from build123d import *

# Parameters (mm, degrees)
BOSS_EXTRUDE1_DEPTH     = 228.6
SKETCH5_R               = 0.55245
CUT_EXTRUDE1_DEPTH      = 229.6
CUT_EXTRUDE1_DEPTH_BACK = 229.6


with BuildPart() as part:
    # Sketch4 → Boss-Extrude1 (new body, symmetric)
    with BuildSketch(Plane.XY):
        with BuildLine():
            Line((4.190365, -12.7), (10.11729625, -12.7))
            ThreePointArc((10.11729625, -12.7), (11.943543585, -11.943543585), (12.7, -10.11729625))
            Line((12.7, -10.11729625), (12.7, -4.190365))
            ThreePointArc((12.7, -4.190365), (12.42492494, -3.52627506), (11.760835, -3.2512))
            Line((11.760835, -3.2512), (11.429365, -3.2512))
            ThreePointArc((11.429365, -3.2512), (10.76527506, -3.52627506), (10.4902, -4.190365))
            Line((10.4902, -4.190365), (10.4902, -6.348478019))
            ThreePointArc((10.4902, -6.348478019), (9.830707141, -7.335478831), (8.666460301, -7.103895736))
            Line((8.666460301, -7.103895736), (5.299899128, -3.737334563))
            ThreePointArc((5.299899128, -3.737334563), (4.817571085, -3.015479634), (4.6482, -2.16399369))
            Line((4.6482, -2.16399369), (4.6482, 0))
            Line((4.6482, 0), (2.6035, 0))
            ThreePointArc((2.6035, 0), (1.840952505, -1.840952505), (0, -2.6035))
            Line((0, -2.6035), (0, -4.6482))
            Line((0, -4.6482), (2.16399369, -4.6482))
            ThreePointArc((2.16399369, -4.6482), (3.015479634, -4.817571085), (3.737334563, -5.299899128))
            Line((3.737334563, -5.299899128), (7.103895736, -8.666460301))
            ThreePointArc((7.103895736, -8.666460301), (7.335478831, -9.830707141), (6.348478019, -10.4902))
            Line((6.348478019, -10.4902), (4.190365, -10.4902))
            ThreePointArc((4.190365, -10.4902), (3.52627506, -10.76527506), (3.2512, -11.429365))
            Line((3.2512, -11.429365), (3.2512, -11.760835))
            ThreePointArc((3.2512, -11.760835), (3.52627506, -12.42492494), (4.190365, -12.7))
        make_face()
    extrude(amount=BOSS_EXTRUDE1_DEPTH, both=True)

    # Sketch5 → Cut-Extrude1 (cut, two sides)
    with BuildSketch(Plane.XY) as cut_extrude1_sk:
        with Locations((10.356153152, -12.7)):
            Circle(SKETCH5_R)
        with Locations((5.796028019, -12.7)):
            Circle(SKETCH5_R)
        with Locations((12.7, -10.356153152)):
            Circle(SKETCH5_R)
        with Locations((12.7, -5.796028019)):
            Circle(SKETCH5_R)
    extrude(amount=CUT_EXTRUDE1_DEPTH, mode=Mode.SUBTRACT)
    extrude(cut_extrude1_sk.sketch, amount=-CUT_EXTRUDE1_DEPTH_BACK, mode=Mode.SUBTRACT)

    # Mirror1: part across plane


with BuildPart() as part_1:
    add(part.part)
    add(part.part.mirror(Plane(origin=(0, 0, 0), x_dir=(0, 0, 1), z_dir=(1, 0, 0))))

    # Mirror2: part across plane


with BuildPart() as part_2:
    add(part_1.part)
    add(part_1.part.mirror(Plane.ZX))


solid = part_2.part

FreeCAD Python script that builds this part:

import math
import FreeCAD as App
import Part
import Sketcher
from FreeCAD import Vector
Q = App.Units.Quantity

doc = App.newDocument("Part")
body = doc.addObject("PartDesign::Body", "Body")

# Sketch on XY plane
sketch1 = body.newObject("Sketcher::SketchObject", "Sketch")
sketch1.AttachmentSupport = (doc.getObject("XY_Plane"), [""])
sketch1.MapMode = "FlatFace"
sketch1.addGeometry([
    Part.LineSegment(Vector(4.19, -12.7, 0), Vector(10.12, -12.7, 0)),  # 0
    Part.ArcOfCircle(Part.Circle(Vector(10.12, -10.12, 0), Vector(0, 0, 1), 2.58), math.radians(-90), math.radians(0)),  # 1
    Part.LineSegment(Vector(12.7, -10.12, 0), Vector(12.7, -4.19, 0)),  # 2
    Part.ArcOfCircle(Part.Circle(Vector(11.76, -4.19, 0), Vector(0, 0, 1), 0.94), math.radians(0), math.radians(90)),  # 3
    Part.LineSegment(Vector(11.76, -3.25, 0), Vector(11.43, -3.25, 0)),  # 4
    Part.ArcOfCircle(Part.Circle(Vector(11.43, -4.19, 0), Vector(0, 0, 1), 0.94), math.radians(90), math.radians(180)),  # 5
    Part.LineSegment(Vector(10.49, -4.19, 0), Vector(10.49, -6.35, 0)),  # 6
    Part.ArcOfCircle(Part.Circle(Vector(9.42, -6.35, 0), Vector(0, 0, 1), 1.07), math.radians(-135), math.radians(0)),  # 7
    Part.LineSegment(Vector(8.67, -7.1, 0), Vector(5.3, -3.74, 0)),  # 8
    Part.ArcOfCircle(Part.Circle(Vector(6.87, -2.16, 0), Vector(0, 0, 1), 2.23), math.radians(-180), math.radians(-135)),  # 9
    Part.LineSegment(Vector(4.65, -2.16, 0), Vector(4.65, 0, 0)),  # 10
    Part.LineSegment(Vector(4.65, 0, 0), Vector(2.6, 0, 0)),  # 11
    Part.ArcOfCircle(Part.Circle(Vector(0, 0, 0), Vector(0, 0, 1), 2.6), math.radians(-90), math.radians(0)),  # 12
    Part.LineSegment(Vector(0, -2.6, 0), Vector(0, -4.65, 0)),  # 13
    Part.LineSegment(Vector(0, -4.65, 0), Vector(2.16, -4.65, 0)),  # 14
    Part.ArcOfCircle(Part.Circle(Vector(2.16, -6.87, 0), Vector(0, 0, 1), 2.23), math.radians(45), math.radians(90)),  # 15
    Part.LineSegment(Vector(3.74, -5.3, 0), Vector(7.1, -8.67, 0)),  # 16
    Part.ArcOfCircle(Part.Circle(Vector(6.35, -9.42, 0), Vector(0, 0, 1), 1.07), math.radians(-90), math.radians(45)),  # 17
    Part.LineSegment(Vector(6.35, -10.49, 0), Vector(4.19, -10.49, 0)),  # 18
    Part.ArcOfCircle(Part.Circle(Vector(4.19, -11.43, 0), Vector(0, 0, 1), 0.94), math.radians(90), math.radians(180)),  # 19
    Part.LineSegment(Vector(3.25, -11.43, 0), Vector(3.25, -11.76, 0)),  # 20
    Part.ArcOfCircle(Part.Circle(Vector(4.19, -11.76, 0), Vector(0, 0, 1), 0.94), math.radians(-180), math.radians(-90)),  # 21
], False)
sketch1.addConstraint([
    Sketcher.Constraint("Tangent", 0, 2, 1, 1),
    Sketcher.Constraint("Tangent", 1, 2, 2, 1),
    Sketcher.Constraint("Tangent", 2, 2, 3, 1),
    Sketcher.Constraint("Tangent", 3, 2, 4, 1),
    Sketcher.Constraint("Tangent", 4, 2, 5, 1),
    Sketcher.Constraint("Tangent", 5, 2, 6, 1),
    Sketcher.Constraint("Tangent", 6, 2, 7, 2),
    Sketcher.Constraint("Tangent", 7, 1, 8, 1),
    Sketcher.Constraint("Tangent", 8, 2, 9, 2),
    Sketcher.Constraint("Tangent", 9, 1, 10, 1),
    Sketcher.Constraint("Coincident", 10, 2, 11, 1),
    Sketcher.Constraint("Coincident", 11, 2, 12, 2),
    Sketcher.Constraint("Coincident", 12, 1, 13, 1),
    Sketcher.Constraint("Coincident", 13, 2, 14, 1),
    Sketcher.Constraint("Tangent", 14, 2, 15, 2),
    Sketcher.Constraint("Tangent", 15, 1, 16, 1),
    Sketcher.Constraint("Tangent", 16, 2, 17, 2),
    Sketcher.Constraint("Tangent", 17, 1, 18, 1),
    Sketcher.Constraint("Tangent", 18, 2, 19, 1),
    Sketcher.Constraint("Tangent", 19, 2, 20, 1),
    Sketcher.Constraint("Tangent", 20, 2, 21, 1),
    Sketcher.Constraint("Tangent", 21, 2, 0, 1),
    Sketcher.Constraint("Horizontal", 0),
    Sketcher.Constraint("Vertical", 2),
    Sketcher.Constraint("Horizontal", 4),
    Sketcher.Constraint("Vertical", 6),
    Sketcher.Constraint("Vertical", 10),
    Sketcher.Constraint("Horizontal", 11),
    Sketcher.Constraint("Vertical", 13),
    Sketcher.Constraint("Horizontal", 14),
    Sketcher.Constraint("Horizontal", 18),
    Sketcher.Constraint("Vertical", 20),
    Sketcher.Constraint("Coincident", 12, 3, -1, 1),
    Sketcher.Constraint("Equal", 3, 5),
    Sketcher.Constraint("Equal", 9, 15),
    Sketcher.Constraint("Equal", 7, 17),
    Sketcher.Constraint("Equal", 5, 19),
    Sketcher.Constraint("Equal", 19, 21),
    Sketcher.Constraint("PointOnObject", 10, 2, -1),
    Sketcher.Constraint("PointOnObject", 12, 1, -2),
    Sketcher.Constraint("Parallel", 8, 16),
    Sketcher.Constraint("Equal", 0, 2),
    Sketcher.Constraint("Equal", 18, 6),
    Sketcher.Constraint("Equal", 14, 10),
    Sketcher.Constraint("Equal", 11, 13),
    Sketcher.Constraint("Equal", 4, 20),
    Sketcher.Constraint("Equal", 8, 16),
    Sketcher.Constraint("DistanceY", 0, 2, -1, 1, Q("0.5 in")),
    Sketcher.Constraint("Radius", 9, Q("0.0876 in")),
    Sketcher.Constraint("Radius", 12, Q("0.1025 in")),
    Sketcher.Constraint("DistanceX", 9, 1, 5, 2, Q("0.23 in")),
    Sketcher.Constraint("DistanceX", 11, 2, 11, 1, Q("0.0805 in")),
    Sketcher.Constraint("DistanceY", 3, 2, -1, 1, Q("0.128 in")),
    Sketcher.Constraint("Radius", 7, Q("1.068322 mm")),
    Sketcher.Constraint("DistanceX", 17, 3, 7, 3, Q("0.121 in")),
    Sketcher.Constraint("Radius", 1, Q("2.582704 mm")),
    Sketcher.Constraint("Radius", 3, Q("0.939165 mm")),
])
pad1 = body.newObject("PartDesign::Pad", "Pad")
pad1.Profile = sketch1
pad1.Length = Q("18 in")
pad1.Midplane = True

# Sketch on XY plane
sketch2 = body.newObject("Sketcher::SketchObject", "Sketch001")
sketch2.AttachmentSupport = (doc.getObject("XY_Plane"), [""])
sketch2.MapMode = "FlatFace"
sketch2.addGeometry([
    Part.Circle(Vector(10.4, -12.7, 0), Vector(0, 0, 1), 0.6),
    Part.Circle(Vector(5.8, -12.7, 0), Vector(0, 0, 1), 0.6),
    Part.Circle(Vector(12.7, -10.4, 0), Vector(0, 0, 1), 0.6),
    Part.Circle(Vector(12.7, -5.8, 0), Vector(0, 0, 1), 0.6),
], False)
sketch2.addConstraint([
    Sketcher.Constraint("Equal", 0, 1),
    Sketcher.Constraint("Equal", 1, 2),
    Sketcher.Constraint("Equal", 2, 3),
    Sketcher.Constraint("Horizontal", 0, 3, 1, 3),
    Sketcher.Constraint("Vertical", 2, 3, 3, 3),
    Sketcher.Constraint("Diameter", 0, Q("0.0435 in")),
    Sketcher.Constraint("DistanceY", 0, 3, -1, 1, Q("0.5 in")),
    Sketcher.Constraint("DistanceX", -1, 1, 2, 3, Q("0.5 in")),
    Sketcher.Constraint("DistanceX", -1, 1, 1, 3, Q("5.796028 mm")),
    Sketcher.Constraint("DistanceY", 3, 3, -1, 1, Q("5.796028 mm")),
    Sketcher.Constraint("DistanceX", -1, 1, 0, 3, Q("10.356153 mm")),
    Sketcher.Constraint("DistanceY", 2, 3, -1, 1, Q("10.356153 mm")),
])
pocket1 = body.newObject("PartDesign::Pocket", "Pocket")
pocket1.Profile = sketch2
pocket1.Type = "ThroughAll"
pocket1.Midplane = True
body2 = doc.addObject("PartDesign::Body", "Body001")
doc.recompute()

body2.BaseFeature = body
doc.recompute()

mirroring = doc.addObject("Part::Mirroring", "Mirroring")
mirroring.Source = body
mirroring.Base = Vector(0, 0, 0)
mirroring.Normal = Vector(1, 0, 0)
body3 = doc.addObject("PartDesign::Body", "Body002")
body3.BaseFeature = mirroring
boolean = body2.newObject("PartDesign::Boolean", "Boolean")
boolean.Type = "Fuse"
boolean.addObjects([body3])
doc.recompute()
body4 = doc.addObject("PartDesign::Body", "Body003")
doc.recompute()

body4.BaseFeature = body2
doc.recompute()

mirroring2 = doc.addObject("Part::Mirroring", "Mirroring001")
mirroring2.Source = body2
mirroring2.Base = Vector(0, 0, 0)
mirroring2.Normal = Vector(0, 1, 0)
body5 = doc.addObject("PartDesign::Body", "Body004")
body5.BaseFeature = mirroring2
boolean2 = body4.newObject("PartDesign::Boolean", "Boolean001")
boolean2.Type = "Fuse"
boolean2.addObjects([body5])
doc.recompute()
mirroring.Visibility = False
mirroring2.Visibility = False

doc.recompute()
